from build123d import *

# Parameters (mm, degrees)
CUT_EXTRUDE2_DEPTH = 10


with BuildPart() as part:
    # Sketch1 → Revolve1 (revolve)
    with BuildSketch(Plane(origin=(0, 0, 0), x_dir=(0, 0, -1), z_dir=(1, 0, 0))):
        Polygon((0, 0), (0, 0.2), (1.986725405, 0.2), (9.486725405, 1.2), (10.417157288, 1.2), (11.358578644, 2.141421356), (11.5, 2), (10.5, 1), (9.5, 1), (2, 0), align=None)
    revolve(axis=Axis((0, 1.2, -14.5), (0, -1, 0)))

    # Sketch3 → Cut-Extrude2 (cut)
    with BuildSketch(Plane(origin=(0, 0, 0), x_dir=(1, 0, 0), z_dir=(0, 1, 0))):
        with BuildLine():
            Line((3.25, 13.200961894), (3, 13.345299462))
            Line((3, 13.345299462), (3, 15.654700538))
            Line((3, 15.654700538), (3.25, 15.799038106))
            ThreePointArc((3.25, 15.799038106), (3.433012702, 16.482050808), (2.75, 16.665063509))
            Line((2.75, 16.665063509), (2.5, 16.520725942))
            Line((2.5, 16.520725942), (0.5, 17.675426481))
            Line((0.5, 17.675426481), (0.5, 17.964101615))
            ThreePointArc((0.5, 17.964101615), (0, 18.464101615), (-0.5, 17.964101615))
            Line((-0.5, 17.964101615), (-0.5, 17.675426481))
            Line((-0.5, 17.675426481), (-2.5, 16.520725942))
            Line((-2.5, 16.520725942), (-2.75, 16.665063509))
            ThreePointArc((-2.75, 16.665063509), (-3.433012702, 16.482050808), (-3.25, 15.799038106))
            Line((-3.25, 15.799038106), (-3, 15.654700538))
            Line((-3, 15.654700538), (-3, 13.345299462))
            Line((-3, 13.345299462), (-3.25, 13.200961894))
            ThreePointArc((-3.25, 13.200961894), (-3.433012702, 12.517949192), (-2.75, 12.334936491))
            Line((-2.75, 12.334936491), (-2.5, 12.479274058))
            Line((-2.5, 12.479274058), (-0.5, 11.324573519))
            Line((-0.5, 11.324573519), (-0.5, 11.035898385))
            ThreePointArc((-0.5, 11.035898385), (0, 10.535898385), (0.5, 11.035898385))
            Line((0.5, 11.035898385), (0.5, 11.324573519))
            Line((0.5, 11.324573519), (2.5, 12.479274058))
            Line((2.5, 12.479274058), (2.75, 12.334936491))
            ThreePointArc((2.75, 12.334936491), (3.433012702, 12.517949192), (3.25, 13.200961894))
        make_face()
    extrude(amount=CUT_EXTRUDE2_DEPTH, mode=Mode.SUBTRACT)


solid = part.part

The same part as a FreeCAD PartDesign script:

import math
import FreeCAD as App
import Part
import Sketcher
Q = App.Units.Quantity

doc = App.newDocument("Part")
params = doc.addObject("Spreadsheet::Sheet", "Params")
for row, (alias, value) in enumerate([
    ("sketch1_height", "2 mm"),
    ("sketch1_height2", "1 mm"),
    ("sketch1_width", "0.2 mm"),
    ("sketch1_length", "0.2 mm"),
    ("revolution_angle", "360 deg"),
    ("sketch2_radius", "0.5 mm"),
    ("pocket1_length", "10 mm"),
], start=1):
    params.set(f"A{row}", alias)
    params.set(f"B{row}", "=" + value)
    params.setAlias(f"B{row}", alias)

body = doc.addObject("PartDesign::Body", "Body")

# Sketch on YZ plane
sketch1 = body.newObject("Sketcher::SketchObject", "Sketch")
sketch1.AttachmentSupport = (doc.getObject("YZ_Plane"), [""])
sketch1.MapMode = "FlatFace"
sketch1.addGeometry([
    Part.LineSegment(App.Vector(0.2, 0, 0), App.Vector(0, 0, 0)),  # 0
    Part.LineSegment(App.Vector(0, 0, 0), App.Vector(0, -2, 0)),  # 1
    Part.LineSegment(App.Vector(0, -2, 0), App.Vector(1, -9.5, 0)),  # 2
    Part.LineSegment(App.Vector(1, -9.5, 0), App.Vector(1, -10.5, 0)),  # 3
    Part.LineSegment(App.Vector(1, -10.5, 0), App.Vector(2, -11.5, 0)),  # 4
    Part.LineSegment(App.Vector(2, -11.5, 0), App.Vector(2.14, -11.36, 0)),  # 5
    Part.LineSegment(App.Vector(2.14, -11.36, 0), App.Vector(1.2, -10.42, 0)),  # 6
    Part.LineSegment(App.Vector(1.2, -10.42, 0), App.Vector(1.2, -9.49, 0)),  # 7
    Part.LineSegment(App.Vector(1.2, -9.49, 0), App.Vector(0.2, -1.99, 0)),  # 8
    Part.LineSegment(App.Vector(0.2, -1.99, 0), App.Vector(0.2, 0, 0)),  # 9
], False)
sketch1.addGeometry(Part.LineSegment(App.Vector(2.14, -14.5, 0), App.Vector(0, -14.5, 0)), True)  # axis
sketch1.addConstraint([
    Sketcher.Constraint("Coincident", 0, 2, 1, 1),
    Sketcher.Constraint("Coincident", 1, 2, 2, 1),
    Sketcher.Constraint("Coincident", 2, 2, 3, 1),
    Sketcher.Constraint("Coincident", 3, 2, 4, 1),
    Sketcher.Constraint("Coincident", 4, 2, 5, 1),
    Sketcher.Constraint("Coincident", 5, 2, 6, 1),
    Sketcher.Constraint("Coincident", 6, 2, 7, 1),
    Sketcher.Constraint("Coincident", 7, 2, 8, 1),
    Sketcher.Constraint("Coincident", 8, 2, 9, 1),
    Sketcher.Constraint("Coincident", 9, 2, 0, 1),
    Sketcher.Constraint("Horizontal", 0),
    Sketcher.Constraint("Vertical", 1),
    Sketcher.Constraint("Vertical", 3),
    Sketcher.Constraint("Vertical", 7),
    Sketcher.Constraint("Vertical", 9),
    Sketcher.Constraint("Horizontal", 10),
    Sketcher.Constraint("Coincident", 0, 2, -1, 1),
    Sketcher.Constraint("PointOnObject", 10, 2, -2),
    Sketcher.Constraint("Perpendicular", 4, 5),
    Sketcher.Constraint("Perpendicular", 5, 6),
    Sketcher.Constraint("Parallel", 2, 8),
    Sketcher.Constraint("Vertical", 5, 2, 10, 1),
    Sketcher.Constraint("Equal", 2, 8),
    Sketcher.Constraint("DistanceY", 1, 2, 1, 1, Q("2 mm")),
    Sketcher.Constraint("DistanceY", 3, 2, 3, 1, Q("1 mm")),
    Sketcher.Constraint("Angle", 4, Q("-45 deg")),
    Sketcher.Constraint("DistanceX", 0, 2, 0, 1, Q("0.2 mm")),
    Sketcher.Constraint("DistanceX", -1, 1, 2, 2, Q("1 mm")),
    Sketcher.Constraint("DistanceX", -1, 1, 4, 2, Q("2 mm")),
    Sketcher.Constraint("DistanceY", 10, 1, 4, 2, Q("3 mm")),
    Sketcher.Constraint("Distance", 5, Q("0.2 mm")),
    Sketcher.Constraint("DistanceY", 2, 2, -1, 1, Q("9.5 mm")),
    Sketcher.Constraint("DistanceY", 7, 1, 7, 2, Q("0.930432 mm")),
])
sketch1.setExpression("Constraints[23]", "Params.sketch1_height")
sketch1.setExpression("Constraints[24]", "Params.sketch1_height2")
sketch1.setExpression("Constraints[26]", "Params.sketch1_width")
sketch1.setExpression("Constraints[30]", "Params.sketch1_length")
revolution = body.newObject("PartDesign::Revolution", "Revolution")
revolution.Profile = sketch1
revolution.ReferenceAxis = (sketch1, ["Axis0"])
revolution.setExpression("Angle", "Params.revolution_angle")

# Sketch on XZ plane
sketch2 = body.newObject("Sketcher::SketchObject", "Sketch001")
sketch2.AttachmentSupport = (doc.getObject("XZ_Plane"), [""])
sketch2.MapMode = "FlatFace"
sketch2.addGeometry([
    Part.LineSegment(App.Vector(3.25, -13.2, 0), App.Vector(3, -13.35, 0)),  # 0
    Part.LineSegment(App.Vector(3, -13.35, 0), App.Vector(3, -15.65, 0)),  # 1
    Part.LineSegment(App.Vector(3, -15.65, 0), App.Vector(3.25, -15.8, 0)),  # 2
    Part.ArcOfCircle(Part.Circle(App.Vector(3, -16.23, 0), App.Vector(0, 0, 1), 0.5), math.radians(-120), math.radians(60)),  # 3
    Part.LineSegment(App.Vector(2.75, -16.67, 0), App.Vector(2.5, -16.52, 0)),  # 4
    Part.LineSegment(App.Vector(2.5, -16.52, 0), App.Vector(0.5, -17.68, 0)),  # 5
    Part.LineSegment(App.Vector(0.5, -17.68, 0), App.Vector(0.5, -17.96, 0)),  # 6
    Part.ArcOfCircle(Part.Circle(App.Vector(0, -17.96, 0), App.Vector(0, 0, 1), 0.5), math.radians(180), math.radians(360)),  # 7
    Part.LineSegment(App.Vector(-0.5, -17.96, 0), App.Vector(-0.5, -17.68, 0)),  # 8
    Part.LineSegment(App.Vector(-0.5, -17.68, 0), App.Vector(-2.5, -16.52, 0)),  # 9
    Part.LineSegment(App.Vector(-2.5, -16.52, 0), App.Vector(-2.75, -16.67, 0)),  # 10
    Part.ArcOfCircle(Part.Circle(App.Vector(-3, -16.23, 0), App.Vector(0, 0, 1), 0.5), math.radians(120), math.radians(300)),  # 11
    Part.LineSegment(App.Vector(-3.25, -15.8, 0), App.Vector(-3, -15.65, 0)),  # 12
    Part.LineSegment(App.Vector(-3, -15.65, 0), App.Vector(-3, -13.35, 0)),  # 13
    Part.LineSegment(App.Vector(-3, -13.35, 0), App.Vector(-3.25, -13.2, 0)),  # 14
    Part.ArcOfCircle(Part.Circle(App.Vector(-3, -12.77, 0), App.Vector(0, 0, 1), 0.5), math.radians(60), math.radians(240)),  # 15
    Part.LineSegment(App.Vector(-2.75, -12.33, 0), App.Vector(-2.5, -12.48, 0)),  # 16
    Part.LineSegment(App.Vector(-2.5, -12.48, 0), App.Vector(-0.5, -11.32, 0)),  # 17
    Part.LineSegment(App.Vector(-0.5, -11.32, 0), App.Vector(-0.5, -11.04, 0)),  # 18
    Part.ArcOfCircle(Part.Circle(App.Vector(0, -11.04, 0), App.Vector(0, 0, 1), 0.5), math.radians(0), math.radians(180)),  # 19
    Part.LineSegment(App.Vector(0.5, -11.04, 0), App.Vector(0.5, -11.32, 0)),  # 20
    Part.LineSegment(App.Vector(0.5, -11.32, 0), App.Vector(2.5, -12.48, 0)),  # 21
    Part.LineSegment(App.Vector(2.5, -12.48, 0), App.Vector(2.75, -12.33, 0)),  # 22
    Part.ArcOfCircle(Part.Circle(App.Vector(3, -12.77, 0), App.Vector(0, 0, 1), 0.5), math.radians(-60), math.radians(120)),  # 23
], False)
sketch2.addConstraint([
    Sketcher.Constraint("Coincident", 0, 2, 1, 1),
    Sketcher.Constraint("Coincident", 1, 2, 2, 1),
    Sketcher.Constraint("Tangent", 2, 2, 3, 2),
    Sketcher.Constraint("Tangent", 3, 1, 4, 1),
    Sketcher.Constraint("Coincident", 4, 2, 5, 1),
    Sketcher.Constraint("Coincident", 5, 2, 6, 1),
    Sketcher.Constraint("Tangent", 6, 2, 7, 2),
    Sketcher.Constraint("Tangent", 7, 1, 8, 1),
    Sketcher.Constraint("Coincident", 8, 2, 9, 1),
    Sketcher.Constraint("Coincident", 9, 2, 10, 1),
    Sketcher.Constraint("Tangent", 10, 2, 11, 2),
    Sketcher.Constraint("Tangent", 11, 1, 12, 1),
    Sketcher.Constraint("Coincident", 12, 2, 13, 1),
    Sketcher.Constraint("Coincident", 13, 2, 14, 1),
    Sketcher.Constraint("Tangent", 14, 2, 15, 2),
    Sketcher.Constraint("Tangent", 15, 1, 16, 1),
    Sketcher.Constraint("Coincident", 16, 2, 17, 1),
    Sketcher.Constraint("Coincident", 17, 2, 18, 1),
    Sketcher.Constraint("Tangent", 18, 2, 19, 2),
    Sketcher.Constraint("Tangent", 19, 1, 20, 1),
    Sketcher.Constraint("Coincident", 20, 2, 21, 1),
    Sketcher.Constraint("Coincident", 21, 2, 22, 1),
    Sketcher.Constraint("Tangent", 22, 2, 23, 2),
    Sketcher.Constraint("Tangent", 23, 1, 0, 1),
    Sketcher.Constraint("Vertical", 1),
    Sketcher.Constraint("Vertical", 6),
    Sketcher.Constraint("Vertical", 8),
    Sketcher.Constraint("Vertical", 13),
    Sketcher.Constraint("Vertical", 18),
    Sketcher.Constraint("Vertical", 20),
    Sketcher.Constraint("Equal", 3, 7),
    Sketcher.Constraint("Equal", 7, 11),
    Sketcher.Constraint("Equal", 11, 15),
    Sketcher.Constraint("Equal", 15, 19),
    Sketcher.Constraint("Equal", 19, 23),
    Sketcher.Constraint("Symmetric", 3, 3, 11, 3, -2),
    Sketcher.Constraint("Symmetric", 15, 3, 23, 3, -2),
    Sketcher.Constraint("Symmetric", 5, 2, 8, 2, -2),
    Sketcher.Constraint("Symmetric", 4, 2, 9, 2, -2),
    Sketcher.Constraint("Symmetric", 1, 2, 12, 2, -2),
    Sketcher.Constraint("Symmetric", 17, 2, 20, 2, -2),
    Sketcher.Constraint("Symmetric", 16, 2, 21, 2, -2),
    Sketcher.Constraint("Parallel", 2, 4),
    Sketcher.Constraint("Parallel", 0, 5),
    Sketcher.Constraint("Parallel", 4, 9),
    Sketcher.Constraint("Parallel", 9, 14),
    Sketcher.Constraint("Parallel", 14, 16),
    Sketcher.Constraint("Parallel", 12, 17),
    Sketcher.Constraint("Vertical", 11, 3, 15, 3),
    Sketcher.Constraint("Vertical", 23, 3, 0, 2),
    Sketcher.Constraint("Vertical", 9, 2, 16, 2),
    Sketcher.Constraint("Equal", 8, 18),
    Sketcher.Constraint("Equal", 2, 4),
    Sketcher.Constraint("Radius", 3, Q("0.5 mm")),
    Sketcher.Constraint("Angle", 0, Q("-150 deg")),
    Sketcher.Constraint("DistanceX", -1, 1, 3, 3, Q("3 mm")),
    Sketcher.Constraint("DistanceY", 1, 2, 1, 1, Q("2.309401 mm")),
    Sketcher.Constraint("DistanceY", 7, 3, -1, 1, Q("17.964102 mm")),
    Sketcher.Constraint("DistanceY", 19, 3, -1, 1, Q("11.035898 mm")),
])
sketch2.setExpression("Constraints[53]", "Params.sketch2_radius")
pocket1 = body.newObject("PartDesign::Pocket", "Pocket")
pocket1.Profile = sketch2
pocket1.setExpression("Length", "Params.pocket1_length")

doc.recompute()
